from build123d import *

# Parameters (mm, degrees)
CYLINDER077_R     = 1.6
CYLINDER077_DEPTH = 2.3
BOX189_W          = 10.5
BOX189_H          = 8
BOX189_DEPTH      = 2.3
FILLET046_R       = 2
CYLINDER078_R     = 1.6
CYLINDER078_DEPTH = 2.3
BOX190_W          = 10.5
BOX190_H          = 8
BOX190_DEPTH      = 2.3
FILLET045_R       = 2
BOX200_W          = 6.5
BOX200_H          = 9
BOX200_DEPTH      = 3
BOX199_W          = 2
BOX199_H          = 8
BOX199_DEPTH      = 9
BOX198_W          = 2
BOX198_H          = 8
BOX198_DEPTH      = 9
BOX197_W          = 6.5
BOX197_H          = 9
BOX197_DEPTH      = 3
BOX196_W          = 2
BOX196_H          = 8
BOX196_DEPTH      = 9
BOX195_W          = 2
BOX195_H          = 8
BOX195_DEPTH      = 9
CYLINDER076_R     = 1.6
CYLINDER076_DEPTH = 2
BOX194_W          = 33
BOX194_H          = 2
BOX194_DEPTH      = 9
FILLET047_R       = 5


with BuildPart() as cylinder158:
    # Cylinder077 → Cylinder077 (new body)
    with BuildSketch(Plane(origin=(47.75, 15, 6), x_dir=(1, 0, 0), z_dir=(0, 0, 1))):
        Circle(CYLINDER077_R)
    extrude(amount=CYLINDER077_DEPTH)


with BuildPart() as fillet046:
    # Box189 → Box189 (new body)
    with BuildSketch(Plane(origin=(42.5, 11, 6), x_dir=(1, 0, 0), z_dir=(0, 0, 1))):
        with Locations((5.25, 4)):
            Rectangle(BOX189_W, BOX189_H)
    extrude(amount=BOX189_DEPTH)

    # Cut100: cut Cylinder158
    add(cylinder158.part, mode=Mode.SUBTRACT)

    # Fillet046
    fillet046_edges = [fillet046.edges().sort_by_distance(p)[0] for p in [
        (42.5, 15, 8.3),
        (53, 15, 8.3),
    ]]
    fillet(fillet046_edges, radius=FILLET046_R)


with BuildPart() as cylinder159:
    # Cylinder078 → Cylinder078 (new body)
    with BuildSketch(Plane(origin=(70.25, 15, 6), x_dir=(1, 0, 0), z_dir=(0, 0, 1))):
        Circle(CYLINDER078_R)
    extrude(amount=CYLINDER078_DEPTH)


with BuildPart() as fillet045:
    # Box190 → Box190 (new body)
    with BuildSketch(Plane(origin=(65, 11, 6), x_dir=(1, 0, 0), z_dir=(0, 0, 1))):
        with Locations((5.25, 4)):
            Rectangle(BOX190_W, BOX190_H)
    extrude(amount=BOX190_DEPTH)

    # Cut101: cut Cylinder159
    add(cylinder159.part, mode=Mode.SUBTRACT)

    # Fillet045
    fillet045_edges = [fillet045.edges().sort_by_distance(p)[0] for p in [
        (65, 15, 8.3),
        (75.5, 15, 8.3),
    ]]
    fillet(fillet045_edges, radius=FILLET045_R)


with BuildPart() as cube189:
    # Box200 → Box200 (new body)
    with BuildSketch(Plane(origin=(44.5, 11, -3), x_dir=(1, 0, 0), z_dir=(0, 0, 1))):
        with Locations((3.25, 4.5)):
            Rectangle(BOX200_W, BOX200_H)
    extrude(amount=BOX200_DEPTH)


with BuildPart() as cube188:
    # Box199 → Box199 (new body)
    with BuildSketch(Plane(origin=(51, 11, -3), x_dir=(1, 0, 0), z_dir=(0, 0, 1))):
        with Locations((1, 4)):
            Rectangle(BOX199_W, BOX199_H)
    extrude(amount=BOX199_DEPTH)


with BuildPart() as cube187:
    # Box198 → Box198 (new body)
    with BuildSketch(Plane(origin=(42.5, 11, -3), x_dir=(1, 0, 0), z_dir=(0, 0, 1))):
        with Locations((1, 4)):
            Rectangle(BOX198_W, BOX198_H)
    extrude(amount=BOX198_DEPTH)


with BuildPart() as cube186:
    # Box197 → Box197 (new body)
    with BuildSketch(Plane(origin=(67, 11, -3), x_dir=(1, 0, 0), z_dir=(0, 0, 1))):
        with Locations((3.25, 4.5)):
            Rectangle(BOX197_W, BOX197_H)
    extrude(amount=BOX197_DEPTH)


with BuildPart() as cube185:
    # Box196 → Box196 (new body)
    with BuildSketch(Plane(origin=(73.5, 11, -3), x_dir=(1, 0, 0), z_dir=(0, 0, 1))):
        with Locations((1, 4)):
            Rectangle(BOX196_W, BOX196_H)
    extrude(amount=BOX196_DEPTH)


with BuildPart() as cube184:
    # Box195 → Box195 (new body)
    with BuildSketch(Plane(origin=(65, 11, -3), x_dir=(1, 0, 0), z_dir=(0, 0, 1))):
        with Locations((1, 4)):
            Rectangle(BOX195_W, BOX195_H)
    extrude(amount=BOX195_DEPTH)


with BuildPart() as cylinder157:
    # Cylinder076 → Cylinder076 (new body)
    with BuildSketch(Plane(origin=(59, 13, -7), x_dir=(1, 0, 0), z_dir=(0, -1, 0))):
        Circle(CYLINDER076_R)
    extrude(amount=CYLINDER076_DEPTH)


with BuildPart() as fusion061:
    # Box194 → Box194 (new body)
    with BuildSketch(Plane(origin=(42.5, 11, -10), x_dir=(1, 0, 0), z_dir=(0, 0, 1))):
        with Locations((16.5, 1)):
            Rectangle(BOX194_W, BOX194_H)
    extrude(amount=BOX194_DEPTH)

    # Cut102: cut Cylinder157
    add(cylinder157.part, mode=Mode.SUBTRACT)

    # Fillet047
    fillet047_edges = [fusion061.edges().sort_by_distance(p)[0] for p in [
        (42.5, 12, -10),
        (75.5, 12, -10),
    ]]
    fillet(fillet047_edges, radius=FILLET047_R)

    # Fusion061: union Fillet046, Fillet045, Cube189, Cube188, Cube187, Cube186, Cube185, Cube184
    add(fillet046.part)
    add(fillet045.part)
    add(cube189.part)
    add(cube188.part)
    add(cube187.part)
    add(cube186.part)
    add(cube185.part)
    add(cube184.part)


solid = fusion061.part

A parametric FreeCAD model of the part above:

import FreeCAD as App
import Part
import Sketcher

V = App.Vector
Q = App.Units.Quantity


def edges_at(feature, points):
    """Names of the edges that pass closest to the given points."""
    edges = feature.Shape.Edges
    near = lambda p: min(range(len(edges)), key=lambda i: edges[i].distToShape(Part.Vertex(*p))[0])
    return sorted({f"Edge{near(p) + 1}" for p in points})

doc = App.newDocument("Part")
body = doc.addObject("PartDesign::Body", "Body")

# Sketch on XY plane
sketch1 = body.newObject("Sketcher::SketchObject", "Sketch")
sketch1.AttachmentSupport = (doc.getObject("XY_Plane"), [""])
sketch1.MapMode = "FlatFace"
sketch1.AttachmentOffset = App.Placement(V(0, 0, 6), App.Rotation())
sketch1.addGeometry(Part.Circle(V(47.75, 15, 0), V(0, 0, 1), 1.6), False)
sketch1.addConstraint(Sketcher.Constraint("Diameter", 0, Q("3.2 mm")))
sketch1.addConstraint(Sketcher.Constraint("DistanceY", -1, 1, 0, 3, Q("15 mm")))
sketch1.addConstraint(Sketcher.Constraint("DistanceX", -1, 1, 0, 3, Q("47.75 mm")))
pad1 = body.newObject("PartDesign::Pad", "Pad")
pad1.Profile = sketch1
pad1.Length = 2.3
body2 = doc.addObject("PartDesign::Body", "Body001")

# Sketch on XY plane
sketch2 = body2.newObject("Sketcher::SketchObject", "Sketch001")
sketch2.AttachmentSupport = (doc.getObject("XY_Plane001"), [""])
sketch2.MapMode = "FlatFace"
sketch2.AttachmentOffset = App.Placement(V(0, 0, 6), App.Rotation())
sketch2.addGeometry(Part.LineSegment(V(42.5, 19, 0), V(42.5, 11, 0)), False)
sketch2.addGeometry(Part.LineSegment(V(42.5, 11, 0), V(53, 11, 0)), False)
sketch2.addGeometry(Part.LineSegment(V(53, 11, 0), V(53, 19, 0)), False)
sketch2.addGeometry(Part.LineSegment(V(53, 19, 0), V(42.5, 19, 0)), False)
sketch2.addConstraint(Sketcher.Constraint("Coincident", 0, 2, 1, 1))
sketch2.addConstraint(Sketcher.Constraint("Coincident", 1, 2, 2, 1))
sketch2.addConstraint(Sketcher.Constraint("Coincident", 2, 2, 3, 1))
sketch2.addConstraint(Sketcher.Constraint("Coincident", 3, 2, 0, 1))
sketch2.addConstraint(Sketcher.Constraint("Vertical", 0))
sketch2.addConstraint(Sketcher.Constraint("Horizontal", 1))
sketch2.addConstraint(Sketcher.Constraint("Vertical", 2))
sketch2.addConstraint(Sketcher.Constraint("Horizontal", 3))
sketch2.addConstraint(Sketcher.Constraint("DistanceY", 0, 2, 0, 1, Q("8 mm")))
sketch2.addConstraint(Sketcher.Constraint("DistanceX", 1, 1, 1, 2, Q("10.5 mm")))
sketch2.addConstraint(Sketcher.Constraint("DistanceY", -1, 1, 0, 2, Q("11 mm")))
sketch2.addConstraint(Sketcher.Constraint("DistanceX", -1, 1, 1, 2, Q("53 mm")))
pad2 = body2.newObject("PartDesign::Pad", "Pad001")
pad2.Profile = sketch2
pad2.Length = 2.3
doc.recompute()

boolean = body2.newObject("PartDesign::Boolean", "Boolean")
boolean.Type = "Cut"
boolean.addObjects([body])
doc.recompute()

fillet = body2.newObject("PartDesign::Fillet", "Fillet")
fillet.Base = (boolean, edges_at(boolean, [(42.5, 15, 8.3), (53, 15, 8.3)]))
fillet.Radius = 2
body3 = doc.addObject("PartDesign::Body", "Body002")

# Sketch on XY plane
sketch3 = body3.newObject("Sketcher::SketchObject", "Sketch002")
sketch3.AttachmentSupport = (doc.getObject("XY_Plane002"), [""])
sketch3.MapMode = "FlatFace"
sketch3.AttachmentOffset = App.Placement(V(0, 0, 6), App.Rotation())
sketch3.addGeometry(Part.Circle(V(70.25, 15, 0), V(0, 0, 1), 1.6), False)
sketch3.addConstraint(Sketcher.Constraint("Diameter", 0, Q("3.2 mm")))
sketch3.addConstraint(Sketcher.Constraint("DistanceY", -1, 1, 0, 3, Q("15 mm")))
sketch3.addConstraint(Sketcher.Constraint("DistanceX", -1, 1, 0, 3, Q("70.25 mm")))
pad3 = body3.newObject("PartDesign::Pad", "Pad002")
pad3.Profile = sketch3
pad3.Length = 2.3
body4 = doc.addObject("PartDesign::Body", "Body003")

# Sketch on XY plane
sketch4 = body4.newObject("Sketcher::SketchObject", "Sketch003")
sketch4.AttachmentSupport = (doc.getObject("XY_Plane003"), [""])
sketch4.MapMode = "FlatFace"
sketch4.AttachmentOffset = App.Placement(V(0, 0, 6), App.Rotation())
sketch4.addGeometry(Part.LineSegment(V(65, 19, 0), V(65, 11, 0)), False)
sketch4.addGeometry(Part.LineSegment(V(65, 11, 0), V(75.5, 11, 0)), False)
sketch4.addGeometry(Part.LineSegment(V(75.5, 11, 0), V(75.5, 19, 0)), False)
sketch4.addGeometry(Part.LineSegment(V(75.5, 19, 0), V(65, 19, 0)), False)
sketch4.addConstraint(Sketcher.Constraint("Coincident", 0, 2, 1, 1))
sketch4.addConstraint(Sketcher.Constraint("Coincident", 1, 2, 2, 1))
sketch4.addConstraint(Sketcher.Constraint("Coincident", 2, 2, 3, 1))
sketch4.addConstraint(Sketcher.Constraint("Coincident", 3, 2, 0, 1))
sketch4.addConstraint(Sketcher.Constraint("Vertical", 0))
sketch4.addConstraint(Sketcher.Constraint("Horizontal", 1))
sketch4.addConstraint(Sketcher.Constraint("Vertical", 2))
sketch4.addConstraint(Sketcher.Constraint("Horizontal", 3))
sketch4.addConstraint(Sketcher.Constraint("DistanceY", 0, 2, 0, 1, Q("8 mm")))
sketch4.addConstraint(Sketcher.Constraint("DistanceX", 1, 1, 1, 2, Q("10.5 mm")))
sketch4.addConstraint(Sketcher.Constraint("DistanceX", -1, 1, 0, 2, Q("65 mm")))
sketch4.addConstraint(Sketcher.Constraint("DistanceY", -1, 1, 0, 2, Q("11 mm")))
pad4 = body4.newObject("PartDesign::Pad", "Pad003")
pad4.Profile = sketch4
pad4.Length = 2.3
doc.recompute()

boolean2 = body4.newObject("PartDesign::Boolean", "Boolean001")
boolean2.Type = "Cut"
boolean2.addObjects([body3])
doc.recompute()

fillet2 = body4.newObject("PartDesign::Fillet", "Fillet001")
fillet2.Base = (boolean2, edges_at(boolean2, [(65, 15, 8.3), (75.5, 15, 8.3)]))
fillet2.Radius = 2
body5 = doc.addObject("PartDesign::Body", "Body004")

# Sketch on XY plane
sketch5 = body5.newObject("Sketcher::SketchObject", "Sketch004")
sketch5.AttachmentSupport = (doc.getObject("XY_Plane004"), [""])
sketch5.MapMode = "FlatFace"
sketch5.AttachmentOffset = App.Placement(V(0, 0, -3), App.Rotation())
sketch5.addGeometry(Part.LineSegment(V(44.5, 20, 0), V(44.5, 11, 0)), False)
sketch5.addGeometry(Part.LineSegment(V(44.5, 11, 0), V(51, 11, 0)), False)
sketch5.addGeometry(Part.LineSegment(V(51, 11, 0), V(51, 20, 0)), False)
sketch5.addGeometry(Part.LineSegment(V(51, 20, 0), V(44.5, 20, 0)), False)
sketch5.addConstraint(Sketcher.Constraint("Coincident", 0, 2, 1, 1))
sketch5.addConstraint(Sketcher.Constraint("Coincident", 1, 2, 2, 1))
sketch5.addConstraint(Sketcher.Constraint("Coincident", 2, 2, 3, 1))
sketch5.addConstraint(Sketcher.Constraint("Coincident", 3, 2, 0, 1))
sketch5.addConstraint(Sketcher.Constraint("Vertical", 0))
sketch5.addConstraint(Sketcher.Constraint("Horizontal", 1))
sketch5.addConstraint(Sketcher.Constraint("Vertical", 2))
sketch5.addConstraint(Sketcher.Constraint("Horizontal", 3))
sketch5.addConstraint(Sketcher.Constraint("DistanceY", 0, 2, 0, 1, Q("9 mm")))
sketch5.addConstraint(Sketcher.Constraint("DistanceX", 1, 1, 1, 2, Q("6.5 mm")))
sketch5.addConstraint(Sketcher.Constraint("DistanceY", -1, 1, 0, 2, Q("11 mm")))
sketch5.addConstraint(Sketcher.Constraint("DistanceX", -1, 1, 1, 2, Q("51 mm")))
pad5 = body5.newObject("PartDesign::Pad", "Pad004")
pad5.Profile = sketch5
pad5.Length = 3
body6 = doc.addObject("PartDesign::Body", "Body005")

# Sketch on XY plane
sketch6 = body6.newObject("Sketcher::SketchObject", "Sketch005")
sketch6.AttachmentSupport = (doc.getObject("XY_Plane005"), [""])
sketch6.MapMode = "FlatFace"
sketch6.AttachmentOffset = App.Placement(V(0, 0, -3), App.Rotation())
sketch6.addGeometry(Part.LineSegment(V(51, 19, 0), V(51, 11, 0)), False)
sketch6.addGeometry(Part.LineSegment(V(51, 11, 0), V(53, 11, 0)), False)
sketch6.addGeometry(Part.LineSegment(V(53, 11, 0), V(53, 19, 0)), False)
sketch6.addGeometry(Part.LineSegment(V(53, 19, 0), V(51, 19, 0)), False)
sketch6.addConstraint(Sketcher.Constraint("Coincident", 0, 2, 1, 1))
sketch6.addConstraint(Sketcher.Constraint("Coincident", 1, 2, 2, 1))
sketch6.addConstraint(Sketcher.Constraint("Coincident", 2, 2, 3, 1))
sketch6.addConstraint(Sketcher.Constraint("Coincident", 3, 2, 0, 1))
sketch6.addConstraint(Sketcher.Constraint("Vertical", 0))
sketch6.addConstraint(Sketcher.Constraint("Horizontal", 1))
sketch6.addConstraint(Sketcher.Constraint("Vertical", 2))
sketch6.addConstraint(Sketcher.Constraint("Horizontal", 3))
sketch6.addConstraint(Sketcher.Constraint("DistanceX", 1, 1, 1, 2, Q("2 mm")))
sketch6.addConstraint(Sketcher.Constraint("DistanceY", 0, 2, 0, 1, Q("8 mm")))
sketch6.addConstraint(Sketcher.Constraint("DistanceX", -1, 1, 0, 2, Q("51 mm")))
sketch6.addConstraint(Sketcher.Constraint("DistanceY", -1, 1, 0, 2, Q("11 mm")))
pad6 = body6.newObject("PartDesign::Pad", "Pad005")
pad6.Profile = sketch6
pad6.Length = 9
body7 = doc.addObject("PartDesign::Body", "Body006")

# Sketch on XY plane
sketch7 = body7.newObject("Sketcher::SketchObject", "Sketch006")
sketch7.AttachmentSupport = (doc.getObject("XY_Plane006"), [""])
sketch7.MapMode = "FlatFace"
sketch7.AttachmentOffset = App.Placement(V(0, 0, -3), App.Rotation())
sketch7.addGeometry(Part.LineSegment(V(42.5, 19, 0), V(42.5, 11, 0)), False)
sketch7.addGeometry(Part.LineSegment(V(42.5, 11, 0), V(44.5, 11, 0)), False)
sketch7.addGeometry(Part.LineSegment(V(44.5, 11, 0), V(44.5, 19, 0)), False)
sketch7.addGeometry(Part.LineSegment(V(44.5, 19, 0), V(42.5, 19, 0)), False)
sketch7.addConstraint(Sketcher.Constraint("Coincident", 0, 2, 1, 1))
sketch7.addConstraint(Sketcher.Constraint("Coincident", 1, 2, 2, 1))
sketch7.addConstraint(Sketcher.Constraint("Coincident", 2, 2, 3, 1))
sketch7.addConstraint(Sketcher.Constraint("Coincident", 3, 2, 0, 1))
sketch7.addConstraint(Sketcher.Constraint("Vertical", 0))
sketch7.addConstraint(Sketcher.Constraint("Horizontal", 1))
sketch7.addConstraint(Sketcher.Constraint("Vertical", 2))
sketch7.addConstraint(Sketcher.Constraint("Horizontal", 3))
sketch7.addConstraint(Sketcher.Constraint("DistanceX", 1, 1, 1, 2, Q("2 mm")))
sketch7.addConstraint(Sketcher.Constraint("DistanceY", 0, 2, 0, 1, Q("8 mm")))
sketch7.addConstraint(Sketcher.Constraint("DistanceY", -1, 1, 0, 2, Q("11 mm")))
sketch7.addConstraint(Sketcher.Constraint("DistanceX", -1, 1, 0, 2, Q("42.5 mm")))
pad7 = body7.newObject("PartDesign::Pad", "Pad006")
pad7.Profile = sketch7
pad7.Length = 9
body8 = doc.addObject("PartDesign::Body", "Body007")

# Sketch on XY plane
sketch8 = body8.newObject("Sketcher::SketchObject", "Sketch007")
sketch8.AttachmentSupport = (doc.getObject("XY_Plane007"), [""])
sketch8.MapMode = "FlatFace"
sketch8.AttachmentOffset = App.Placement(V(0, 0, -3), App.Rotation())
sketch8.addGeometry(Part.LineSegment(V(67, 20, 0), V(67, 11, 0)), False)
sketch8.addGeometry(Part.LineSegment(V(67, 11, 0), V(73.5, 11, 0)), False)
sketch8.addGeometry(Part.LineSegment(V(73.5, 11, 0), V(73.5, 20, 0)), False)
sketch8.addGeometry(Part.LineSegment(V(73.5, 20, 0), V(67, 20, 0)), False)
sketch8.addConstraint(Sketcher.Constraint("Coincident", 0, 2, 1, 1))
sketch8.addConstraint(Sketcher.Constraint("Coincident", 1, 2, 2, 1))
sketch8.addConstraint(Sketcher.Constraint("Coincident", 2, 2, 3, 1))
sketch8.addConstraint(Sketcher.Constraint("Coincident", 3, 2, 0, 1))
sketch8.addConstraint(Sketcher.Constraint("Vertical", 0))
sketch8.addConstraint(Sketcher.Constraint("Horizontal", 1))
sketch8.addConstraint(Sketcher.Constraint("Vertical", 2))
sketch8.addConstraint(Sketcher.Constraint("Horizontal", 3))
sketch8.addConstraint(Sketcher.Constraint("DistanceY", 0, 2, 0, 1, Q("9 mm")))
sketch8.addConstraint(Sketcher.Constraint("DistanceX", 1, 1, 1, 2, Q("6.5 mm")))
sketch8.addConstraint(Sketcher.Constraint("DistanceX", -1, 1, 0, 2, Q("67 mm")))
sketch8.addConstraint(Sketcher.Constraint("DistanceY", -1, 1, 0, 2, Q("11 mm")))
pad8 = body8.newObject("PartDesign::Pad", "Pad007")
pad8.Profile = sketch8
pad8.Length = 3
body9 = doc.addObject("PartDesign::Body", "Body008")

# Sketch on XY plane
sketch9 = body9.newObject("Sketcher::SketchObject", "Sketch008")
sketch9.AttachmentSupport = (doc.getObject("XY_Plane008"), [""])
sketch9.MapMode = "FlatFace"
sketch9.AttachmentOffset = App.Placement(V(0, 0, -3), App.Rotation())
sketch9.addGeometry(Part.LineSegment(V(73.5, 19, 0), V(73.5, 11, 0)), False)
sketch9.addGeometry(Part.LineSegment(V(73.5, 11, 0), V(75.5, 11, 0)), False)
sketch9.addGeometry(Part.LineSegment(V(75.5, 11, 0), V(75.5, 19, 0)), False)
sketch9.addGeometry(Part.LineSegment(V(75.5, 19, 0), V(73.5, 19, 0)), False)
sketch9.addConstraint(Sketcher.Constraint("Coincident", 0, 2, 1, 1))
sketch9.addConstraint(Sketcher.Constraint("Coincident", 1, 2, 2, 1))
sketch9.addConstraint(Sketcher.Constraint("Coincident", 2, 2, 3, 1))
sketch9.addConstraint(Sketcher.Constraint("Coincident", 3, 2, 0, 1))
sketch9.addConstraint(Sketcher.Constraint("Vertical", 0))
sketch9.addConstraint(Sketcher.Constraint("Horizontal", 1))
sketch9.addConstraint(Sketcher.Constraint("Vertical", 2))
sketch9.addConstraint(Sketcher.Constraint("Horizontal", 3))
sketch9.addConstraint(Sketcher.Constraint("DistanceX", 1, 1, 1, 2, Q("2 mm")))
sketch9.addConstraint(Sketcher.Constraint("DistanceY", 0, 2, 0, 1, Q("8 mm")))
sketch9.addConstraint(Sketcher.Constraint("DistanceY", -1, 1, 0, 2, Q("11 mm")))
sketch9.addConstraint(Sketcher.Constraint("DistanceX", -1, 1, 0, 2, Q("73.5 mm")))
pad9 = body9.newObject("PartDesign::Pad", "Pad008")
pad9.Profile = sketch9
pad9.Length = 9
body10 = doc.addObject("PartDesign::Body", "Body009")

# Sketch on XY plane
sketch10 = body10.newObject("Sketcher::SketchObject", "Sketch009")
sketch10.AttachmentSupport = (doc.getObject("XY_Plane009"), [""])
sketch10.MapMode = "FlatFace"
sketch10.AttachmentOffset = App.Placement(V(0, 0, -3), App.Rotation())
sketch10.addGeometry(Part.LineSegment(V(65, 19, 0), V(65, 11, 0)), False)
sketch10.addGeometry(Part.LineSegment(V(65, 11, 0), V(67, 11, 0)), False)
sketch10.addGeometry(Part.LineSegment(V(67, 11, 0), V(67, 19, 0)), False)
sketch10.addGeometry(Part.LineSegment(V(67, 19, 0), V(65, 19, 0)), False)
sketch10.addConstraint(Sketcher.Constraint("Coincident", 0, 2, 1, 1))
sketch10.addConstraint(Sketcher.Constraint("Coincident", 1, 2, 2, 1))
sketch10.addConstraint(Sketcher.Constraint("Coincident", 2, 2, 3, 1))
sketch10.addConstraint(Sketcher.Constraint("Coincident", 3, 2, 0, 1))
sketch10.addConstraint(Sketcher.Constraint("Vertical", 0))
sketch10.addConstraint(Sketcher.Constraint("Horizontal", 1))
sketch10.addConstraint(Sketcher.Constraint("Vertical", 2))
sketch10.addConstraint(Sketcher.Constraint("Horizontal", 3))
sketch10.addConstraint(Sketcher.Constraint("DistanceX", 1, 1, 1, 2, Q("2 mm")))
sketch10.addConstraint(Sketcher.Constraint("DistanceY", 0, 2, 0, 1, Q("8 mm")))
sketch10.addConstraint(Sketcher.Constraint("DistanceX", -1, 1, 0, 2, Q("65 mm")))
sketch10.addConstraint(Sketcher.Constraint("DistanceY", -1, 1, 0, 2, Q("11 mm")))
pad10 = body10.newObject("PartDesign::Pad", "Pad009")
pad10.Profile = sketch10
pad10.Length = 9
body11 = doc.addObject("PartDesign::Body", "Body010")

# Sketch on XZ plane
sketch11 = body11.newObject("Sketcher::SketchObject", "Sketch010")
sketch11.AttachmentSupport = (doc.getObject("XZ_Plane010"), [""])
sketch11.MapMode = "FlatFace"
sketch11.AttachmentOffset = App.Placement(V(0, 0, -13), App.Rotation())
sketch11.addGeometry(Part.Circle(V(59, -7, 0), V(0, 0, 1), 1.6), False)
sketch11.addConstraint(Sketcher.Constraint("Diameter", 0, Q("3.2 mm")))
sketch11.addConstraint(Sketcher.Constraint("DistanceX", -1, 1, 0, 3, Q("59 mm")))
sketch11.addConstraint(Sketcher.Constraint("DistanceY", 0, 3, -1, 1, Q("7 mm")))
pad11 = body11.newObject("PartDesign::Pad", "Pad010")
pad11.Profile = sketch11
pad11.Length = 2
body12 = doc.addObject("PartDesign::Body", "Body011")
body12.AllowCompound = True

# Sketch on XY plane
sketch12 = body12.newObject("Sketcher::SketchObject", "Sketch011")
sketch12.AttachmentSupport = (doc.getObject("XY_Plane011"), [""])
sketch12.MapMode = "FlatFace"
sketch12.AttachmentOffset = App.Placement(V(0, 0, -10), App.Rotation())
sketch12.addGeometry(Part.LineSegment(V(42.5, 13, 0), V(42.5, 11, 0)), False)
sketch12.addGeometry(Part.LineSegment(V(42.5, 11, 0), V(75.5, 11, 0)), False)
sketch12.addGeometry(Part.LineSegment(V(75.5, 11, 0), V(75.5, 13, 0)), False)
sketch12.addGeometry(Part.LineSegment(V(75.5, 13, 0), V(42.5, 13, 0)), False)
sketch12.addConstraint(Sketcher.Constraint("Coincident", 0, 2, 1, 1))
sketch12.addConstraint(Sketcher.Constraint("Coincident", 1, 2, 2, 1))
sketch12.addConstraint(Sketcher.Constraint("Coincident", 2, 2, 3, 1))
sketch12.addConstraint(Sketcher.Constraint("Coincident", 3, 2, 0, 1))
sketch12.addConstraint(Sketcher.Constraint("Vertical", 0))
sketch12.addConstraint(Sketcher.Constraint("Horizontal", 1))
sketch12.addConstraint(Sketcher.Constraint("Vertical", 2))
sketch12.addConstraint(Sketcher.Constraint("Horizontal", 3))
sketch12.addConstraint(Sketcher.Constraint("DistanceX", 1, 1, 1, 2, Q("33 mm")))
sketch12.addConstraint(Sketcher.Constraint("DistanceY", 0, 2, 0, 1, Q("2 mm")))
sketch12.addConstraint(Sketcher.Constraint("DistanceY", -1, 1, 0, 2, Q("11 mm")))
sketch12.addConstraint(Sketcher.Constraint("DistanceX", -1, 1, 0, 2, Q("42.5 mm")))
pad12 = body12.newObject("PartDesign::Pad", "Pad011")
pad12.Profile = sketch12
pad12.Length = 9
doc.recompute()

boolean3 = body12.newObject("PartDesign::Boolean", "Boolean002")
boolean3.Type = "Cut"
boolean3.addObjects([body11])
doc.recompute()

fillet3 = body12.newObject("PartDesign::Fillet", "Fillet002")
fillet3.Base = (boolean3, edges_at(boolean3, [(42.5, 12, -10), (75.5, 12, -10)]))
fillet3.Radius = 5
doc.recompute()

boolean4 = body12.newObject("PartDesign::Boolean", "Boolean003")
boolean4.Type = "Fuse"
boolean4.addObjects([body2])
doc.recompute()

boolean5 = body12.newObject("PartDesign::Boolean", "Boolean004")
boolean5.Type = "Fuse"
boolean5.addObjects([body4])
doc.recompute()

boolean6 = body12.newObject("PartDesign::Boolean", "Boolean005")
boolean6.Type = "Fuse"
boolean6.addObjects([body5])
doc.recompute()

boolean7 = body12.newObject("PartDesign::Boolean", "Boolean006")
boolean7.Type = "Fuse"
boolean7.addObjects([body6])
doc.recompute()

boolean8 = body12.newObject("PartDesign::Boolean", "Boolean007")
boolean8.Type = "Fuse"
boolean8.addObjects([body7])
doc.recompute()

boolean9 = body12.newObject("PartDesign::Boolean", "Boolean008")
boolean9.Type = "Fuse"
boolean9.addObjects([body8])
doc.recompute()

boolean10 = body12.newObject("PartDesign::Boolean", "Boolean009")
boolean10.Type = "Fuse"
boolean10.addObjects([body9])
doc.recompute()

boolean11 = body12.newObject("PartDesign::Boolean", "Boolean010")
boolean11.Type = "Fuse"
boolean11.addObjects([body10])

doc.recompute()
